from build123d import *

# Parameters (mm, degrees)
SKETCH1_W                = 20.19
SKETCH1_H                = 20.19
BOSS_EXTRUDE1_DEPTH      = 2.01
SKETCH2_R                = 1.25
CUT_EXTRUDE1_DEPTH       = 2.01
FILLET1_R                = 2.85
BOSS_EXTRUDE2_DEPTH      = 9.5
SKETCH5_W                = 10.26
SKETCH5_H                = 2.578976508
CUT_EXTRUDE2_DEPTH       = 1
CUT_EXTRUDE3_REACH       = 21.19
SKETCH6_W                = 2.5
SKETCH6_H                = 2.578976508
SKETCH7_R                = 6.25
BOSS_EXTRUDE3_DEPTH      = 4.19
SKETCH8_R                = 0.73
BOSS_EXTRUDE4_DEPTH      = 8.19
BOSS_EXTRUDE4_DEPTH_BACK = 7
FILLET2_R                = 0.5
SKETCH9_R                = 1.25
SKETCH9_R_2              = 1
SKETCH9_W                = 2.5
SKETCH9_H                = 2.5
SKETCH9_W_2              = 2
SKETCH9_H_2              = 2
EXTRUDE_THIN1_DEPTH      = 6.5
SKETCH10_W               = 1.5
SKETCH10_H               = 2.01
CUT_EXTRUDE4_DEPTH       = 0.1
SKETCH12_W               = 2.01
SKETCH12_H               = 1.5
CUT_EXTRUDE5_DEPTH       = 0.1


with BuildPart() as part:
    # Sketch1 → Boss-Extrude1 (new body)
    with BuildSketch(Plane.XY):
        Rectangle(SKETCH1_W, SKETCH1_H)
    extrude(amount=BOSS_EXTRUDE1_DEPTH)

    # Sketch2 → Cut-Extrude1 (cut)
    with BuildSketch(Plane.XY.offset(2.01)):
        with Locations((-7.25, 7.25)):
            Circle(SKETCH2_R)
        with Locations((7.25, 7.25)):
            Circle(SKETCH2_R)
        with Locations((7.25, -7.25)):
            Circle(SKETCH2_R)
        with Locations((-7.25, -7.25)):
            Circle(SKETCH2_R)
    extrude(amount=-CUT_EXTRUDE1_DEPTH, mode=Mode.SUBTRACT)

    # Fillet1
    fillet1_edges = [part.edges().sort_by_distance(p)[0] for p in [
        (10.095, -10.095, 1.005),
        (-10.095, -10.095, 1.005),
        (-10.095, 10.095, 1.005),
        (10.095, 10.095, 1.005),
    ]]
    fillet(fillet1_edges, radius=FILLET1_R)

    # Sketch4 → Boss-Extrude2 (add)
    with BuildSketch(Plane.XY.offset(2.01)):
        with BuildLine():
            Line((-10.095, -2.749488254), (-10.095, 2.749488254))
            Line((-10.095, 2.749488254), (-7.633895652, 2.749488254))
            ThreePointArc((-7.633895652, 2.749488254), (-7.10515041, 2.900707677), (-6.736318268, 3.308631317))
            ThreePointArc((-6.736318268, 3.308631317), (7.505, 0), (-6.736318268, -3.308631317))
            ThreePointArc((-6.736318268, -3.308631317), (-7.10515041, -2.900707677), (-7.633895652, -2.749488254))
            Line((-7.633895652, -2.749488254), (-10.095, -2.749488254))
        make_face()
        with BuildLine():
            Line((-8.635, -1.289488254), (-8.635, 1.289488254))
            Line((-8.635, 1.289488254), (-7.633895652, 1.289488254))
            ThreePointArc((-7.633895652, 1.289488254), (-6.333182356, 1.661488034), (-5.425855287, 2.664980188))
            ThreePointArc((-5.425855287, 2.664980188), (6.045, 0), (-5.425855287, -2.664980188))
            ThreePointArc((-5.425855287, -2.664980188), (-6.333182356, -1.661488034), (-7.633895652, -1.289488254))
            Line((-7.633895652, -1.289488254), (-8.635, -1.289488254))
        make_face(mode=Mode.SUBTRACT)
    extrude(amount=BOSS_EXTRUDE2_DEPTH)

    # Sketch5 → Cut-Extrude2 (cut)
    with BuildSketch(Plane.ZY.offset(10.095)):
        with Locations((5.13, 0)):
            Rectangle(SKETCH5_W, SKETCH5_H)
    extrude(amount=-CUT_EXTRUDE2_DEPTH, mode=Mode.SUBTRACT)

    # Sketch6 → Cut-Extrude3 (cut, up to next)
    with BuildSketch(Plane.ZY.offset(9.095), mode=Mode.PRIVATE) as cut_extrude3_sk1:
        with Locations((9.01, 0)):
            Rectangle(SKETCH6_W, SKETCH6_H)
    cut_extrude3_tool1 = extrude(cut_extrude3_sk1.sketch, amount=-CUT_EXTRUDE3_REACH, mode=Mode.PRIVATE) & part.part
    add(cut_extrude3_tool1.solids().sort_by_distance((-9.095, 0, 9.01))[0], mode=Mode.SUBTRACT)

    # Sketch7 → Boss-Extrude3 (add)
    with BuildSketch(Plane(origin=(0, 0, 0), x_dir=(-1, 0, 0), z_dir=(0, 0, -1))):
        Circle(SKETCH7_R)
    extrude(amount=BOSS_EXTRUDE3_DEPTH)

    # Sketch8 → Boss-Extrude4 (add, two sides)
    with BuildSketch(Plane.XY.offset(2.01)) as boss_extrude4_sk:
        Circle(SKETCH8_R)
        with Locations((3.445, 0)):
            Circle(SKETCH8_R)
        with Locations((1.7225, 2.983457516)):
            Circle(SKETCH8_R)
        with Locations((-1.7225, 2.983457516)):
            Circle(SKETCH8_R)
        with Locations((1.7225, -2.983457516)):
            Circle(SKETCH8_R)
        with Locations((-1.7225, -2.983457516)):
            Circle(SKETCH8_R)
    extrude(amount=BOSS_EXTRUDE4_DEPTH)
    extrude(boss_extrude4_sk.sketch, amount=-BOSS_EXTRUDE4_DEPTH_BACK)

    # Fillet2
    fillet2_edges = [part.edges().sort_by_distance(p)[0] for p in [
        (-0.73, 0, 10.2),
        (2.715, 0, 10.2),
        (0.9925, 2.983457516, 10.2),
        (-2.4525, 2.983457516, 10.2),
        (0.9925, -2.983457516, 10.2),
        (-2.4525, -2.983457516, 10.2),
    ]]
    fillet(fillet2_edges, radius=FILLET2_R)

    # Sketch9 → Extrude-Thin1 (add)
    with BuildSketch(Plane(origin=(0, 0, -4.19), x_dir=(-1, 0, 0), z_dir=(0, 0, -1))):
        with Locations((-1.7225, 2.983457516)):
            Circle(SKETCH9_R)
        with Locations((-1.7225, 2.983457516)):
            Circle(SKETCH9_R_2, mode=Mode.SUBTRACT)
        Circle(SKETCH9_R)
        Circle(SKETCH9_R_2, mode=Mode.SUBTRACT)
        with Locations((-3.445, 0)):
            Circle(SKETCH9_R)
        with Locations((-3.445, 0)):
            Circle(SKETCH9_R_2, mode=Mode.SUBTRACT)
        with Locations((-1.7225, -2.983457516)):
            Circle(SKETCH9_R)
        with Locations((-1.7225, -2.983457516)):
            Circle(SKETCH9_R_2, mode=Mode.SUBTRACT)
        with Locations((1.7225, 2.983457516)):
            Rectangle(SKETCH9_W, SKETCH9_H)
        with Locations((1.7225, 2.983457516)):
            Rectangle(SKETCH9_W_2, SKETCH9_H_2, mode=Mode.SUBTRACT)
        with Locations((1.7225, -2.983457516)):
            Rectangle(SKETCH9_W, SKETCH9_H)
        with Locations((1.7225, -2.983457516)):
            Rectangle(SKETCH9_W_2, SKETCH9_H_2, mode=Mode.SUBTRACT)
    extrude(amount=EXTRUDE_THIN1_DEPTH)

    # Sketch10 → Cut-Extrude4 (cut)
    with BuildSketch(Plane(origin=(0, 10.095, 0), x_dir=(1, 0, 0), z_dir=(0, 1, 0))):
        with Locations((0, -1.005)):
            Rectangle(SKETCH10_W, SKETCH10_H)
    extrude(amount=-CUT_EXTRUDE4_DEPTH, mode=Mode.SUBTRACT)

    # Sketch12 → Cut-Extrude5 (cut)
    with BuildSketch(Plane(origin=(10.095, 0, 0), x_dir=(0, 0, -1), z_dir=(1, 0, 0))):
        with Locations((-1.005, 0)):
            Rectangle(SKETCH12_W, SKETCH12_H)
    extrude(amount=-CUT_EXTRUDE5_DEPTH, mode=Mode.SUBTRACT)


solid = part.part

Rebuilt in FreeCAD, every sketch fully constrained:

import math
import FreeCAD as App
import Part
import Sketcher
Q = App.Units.Quantity


def edges_at(feature, points):
    """Names of the edges that pass closest to the given points."""
    edges = feature.Shape.Edges
    near = lambda p: min(range(len(edges)), key=lambda i: edges[i].distToShape(Part.Vertex(*p))[0])
    return sorted({f"Edge{near(p) + 1}" for p in points})

doc = App.newDocument("Part")
body = doc.addObject("PartDesign::Body", "Body")

# Sketch on XY plane
sketch1 = doc.addObject("Sketcher::SketchObject", "Sketch")
body.addObject(sketch1)
sketch1.AttachmentSupport = (doc.XY_Plane, [""])
sketch1.MapMode = "FlatFace"
sketch1.addGeometry(Part.LineSegment(App.Vector(-10, 10, 0), App.Vector(-10, -10, 0)), False)
sketch1.addGeometry(Part.LineSegment(App.Vector(-10, -10, 0), App.Vector(10, -10, 0)), False)
sketch1.addGeometry(Part.LineSegment(App.Vector(10, -10, 0), App.Vector(10, 10, 0)), False)
sketch1.addGeometry(Part.LineSegment(App.Vector(10, 10, 0), App.Vector(-10, 10, 0)), False)
sketch1.addConstraint(Sketcher.Constraint("Coincident", 0, 2, 1, 1))
sketch1.addConstraint(Sketcher.Constraint("Coincident", 1, 2, 2, 1))
sketch1.addConstraint(Sketcher.Constraint("Coincident", 2, 2, 3, 1))
sketch1.addConstraint(Sketcher.Constraint("Coincident", 3, 2, 0, 1))
sketch1.addConstraint(Sketcher.Constraint("Vertical", 0))
sketch1.addConstraint(Sketcher.Constraint("Horizontal", 1))
sketch1.addConstraint(Sketcher.Constraint("Vertical", 2))
sketch1.addConstraint(Sketcher.Constraint("Horizontal", 3))
sketch1.addConstraint(Sketcher.Constraint("Symmetric", 0, 2, 2, 2, -1, 1))
sketch1.addConstraint(Sketcher.Constraint("Equal", 3, 0))
sketch1.addConstraint(Sketcher.Constraint("DistanceX", 1, 1, 1, 2, Q("20.19 mm")))
pad1 = doc.addObject("PartDesign::Pad", "Pad")
body.addObject(pad1)
pad1.Profile = sketch1
pad1.Length = 2.01

# Sketch on XY plane
sketch2 = doc.addObject("Sketcher::SketchObject", "Sketch001")
body.addObject(sketch2)
sketch2.AttachmentSupport = (doc.XY_Plane, [""])
sketch2.MapMode = "FlatFace"
sketch2.AttachmentOffset = App.Placement(App.Vector(0, 0, 2.01), App.Rotation())
sketch2.addGeometry(Part.Circle(App.Vector(-7.2, 7.2, 0), App.Vector(0, 0, 1), 1.2), False)
sketch2.addGeometry(Part.Circle(App.Vector(7.2, 7.2, 0), App.Vector(0, 0, 1), 1.2), False)
sketch2.addGeometry(Part.Circle(App.Vector(7.2, -7.2, 0), App.Vector(0, 0, 1), 1.2), False)
sketch2.addGeometry(Part.Circle(App.Vector(-7.2, -7.2, 0), App.Vector(0, 0, 1), 1.2), False)
sketch2.addConstraint(Sketcher.Constraint("Equal", 0, 1))
sketch2.addConstraint(Sketcher.Constraint("Equal", 1, 2))
sketch2.addConstraint(Sketcher.Constraint("Equal", 2, 3))
sketch2.addConstraint(Sketcher.Constraint("Symmetric", 0, 3, 2, 3, -1, 1))
sketch2.addConstraint(Sketcher.Constraint("Symmetric", 1, 3, 3, 3, -1, 1))
sketch2.addConstraint(Sketcher.Constraint("Symmetric", 0, 3, 1, 3, -2))
sketch2.addConstraint(Sketcher.Constraint("Diameter", 0, Q("2.5 mm")))
sketch2.addConstraint(Sketcher.Constraint("DistanceX", 0, 3, 1, 3, Q("14.5 mm")))
sketch2.addConstraint(Sketcher.Constraint("DistanceY", 2, 3, 1, 3, Q("14.5 mm")))
pocket1 = doc.addObject("PartDesign::Pocket", "Pocket")
body.addObject(pocket1)
pocket1.Profile = sketch2
pocket1.Length = 2.01
doc.recompute()

fillet = doc.addObject("PartDesign::Fillet", "Fillet")
body.addObject(fillet)
fillet.Base = (pocket1, edges_at(pocket1, [
    (10.095, -10.095, 1.005),
    (-10.095, -10.095, 1.005),
    (-10.095, 10.095, 1.005),
    (10.095, 10.095, 1.005),
]))
fillet.Radius = 2.85

# Sketch on XY plane
sketch3 = doc.addObject("Sketcher::SketchObject", "Sketch002")
body.addObject(sketch3)
sketch3.AttachmentSupport = (doc.XY_Plane, [""])
sketch3.MapMode = "FlatFace"
sketch3.AttachmentOffset = App.Placement(App.Vector(0, 0, 2.01), App.Rotation())
sketch3.addGeometry(Part.LineSegment(App.Vector(-10.1, 2.7, 0), App.Vector(-10.1, -2.7, 0)), False)
sketch3.addGeometry(Part.LineSegment(App.Vector(-10.1, -2.7, 0), App.Vector(-7.6, -2.7, 0)), False)
sketch3.addGeometry(Part.ArcOfCircle(Part.Circle(App.Vector(-7.6, -3.7, 0), App.Vector(0, 0, 1), 1), math.radians(26), math.radians(90)), False)
sketch3.addGeometry(Part.ArcOfCircle(Part.Circle(App.Vector(0, 0, 0), App.Vector(0, 0, 1), 7.5), math.radians(-154), math.radians(154)), False)
sketch3.addGeometry(Part.ArcOfCircle(Part.Circle(App.Vector(-7.6, 3.7, 0), App.Vector(0, 0, 1), 1), math.radians(-90), math.radians(-26)), False)
sketch3.addGeometry(Part.LineSegment(App.Vector(-7.6, 2.7, 0), App.Vector(-10.1, 2.7, 0)), False)
sketch3.addGeometry(Part.LineSegment(App.Vector(-8.6, -1.3, 0), App.Vector(-8.6, 1.3, 0)), False)
sketch3.addGeometry(Part.LineSegment(App.Vector(-8.6, 1.3, 0), App.Vector(-7.6, 1.3, 0)), False)
sketch3.addGeometry(Part.ArcOfCircle(Part.Circle(App.Vector(-7.6, 3.7, 0), App.Vector(0, 0, 1), 2.5), math.radians(-90), math.radians(-26)), False)
sketch3.addGeometry(Part.ArcOfCircle(Part.Circle(App.Vector(0, 0, 0), App.Vector(0, 0, 1), 6), math.radians(-154), math.radians(154)), False)
sketch3.addGeometry(Part.ArcOfCircle(Part.Circle(App.Vector(-7.6, -3.7, 0), App.Vector(0, 0, 1), 2.5), math.radians(26), math.radians(90)), False)
sketch3.addGeometry(Part.LineSegment(App.Vector(-7.6, -1.3, 0), App.Vector(-8.6, -1.3, 0)), False)
sketch3.addConstraint(Sketcher.Constraint("Coincident", 0, 2, 1, 1))
sketch3.addConstraint(Sketcher.Constraint("Tangent", 1, 2, 2, 2))
sketch3.addConstraint(Sketcher.Constraint("Tangent", 2, 1, 3, 1))
sketch3.addConstraint(Sketcher.Constraint("Tangent", 3, 2, 4, 2))
sketch3.addConstraint(Sketcher.Constraint("Tangent", 4, 1, 5, 1))
sketch3.addConstraint(Sketcher.Constraint("Coincident", 5, 2, 0, 1))
sketch3.addConstraint(Sketcher.Constraint("Coincident", 6, 2, 7, 1))
sketch3.addConstraint(Sketcher.Constraint("Tangent", 7, 2, 8, 1))
sketch3.addConstraint(Sketcher.Constraint("Tangent", 8, 2, 9, 2))
sketch3.addConstraint(Sketcher.Constraint("Tangent", 9, 1, 10, 1))
sketch3.addConstraint(Sketcher.Constraint("Tangent", 10, 2, 11, 1))
sketch3.addConstraint(Sketcher.Constraint("Coincident", 11, 2, 6, 1))
sketch3.addConstraint(Sketcher.Constraint("Vertical", 0))
sketch3.addConstraint(Sketcher.Constraint("Horizontal", 1))
sketch3.addConstraint(Sketcher.Constraint("Horizontal", 5))
sketch3.addConstraint(Sketcher.Constraint("Vertical", 6))
sketch3.addConstraint(Sketcher.Constraint("Horizontal", 7))
sketch3.addConstraint(Sketcher.Constraint("Horizontal", 11))
sketch3.addConstraint(Sketcher.Constraint("Coincident", 3, 3, -1, 1))
sketch3.addConstraint(Sketcher.Constraint("Coincident", 9, 3, -1, 1))
sketch3.addConstraint(Sketcher.Constraint("Coincident", 8, 3, 4, 3))
sketch3.addConstraint(Sketcher.Constraint("Coincident", 10, 3, 2, 3))
sketch3.addConstraint(Sketcher.Constraint("Equal", 2, 4))
sketch3.addConstraint(Sketcher.Constraint("Vertical", 2, 3, 4, 3))
sketch3.addConstraint(Sketcher.Constraint("Radius", 2, Q("1 mm")))
sketch3.addConstraint(Sketcher.Constraint("Radius", 8, Q("2.46 mm")))
sketch3.addConstraint(Sketcher.Constraint("Radius", 3, Q("7.505 mm")))
sketch3.addConstraint(Sketcher.Constraint("DistanceX", 5, 2, 6, 2, Q("1.46 mm")))
sketch3.addConstraint(Sketcher.Constraint("DistanceX", 0, 2, -1, 1, Q("10.095 mm")))
sketch3.addConstraint(Sketcher.Constraint("DistanceX", 1, 1, 1, 2, Q("2.461104 mm")))
pad2 = doc.addObject("PartDesign::Pad", "Pad001")
body.addObject(pad2)
pad2.Profile = sketch3
pad2.Length = 9.5

# Sketch on YZ plane
sketch4 = doc.addObject("Sketcher::SketchObject", "Sketch003")
body.addObject(sketch4)
sketch4.AttachmentSupport = (doc.YZ_Plane, [""])
sketch4.MapMode = "FlatFace"
sketch4.AttachmentOffset = App.Placement(App.Vector(0, 0, -10.095), App.Rotation())
sketch4.addGeometry(Part.LineSegment(App.Vector(1.3, 0, 0), App.Vector(-1.3, 0, 0)), False)
sketch4.addGeometry(Part.LineSegment(App.Vector(-1.3, 0, 0), App.Vector(-1.3, 10.3, 0)), False)
sketch4.addGeometry(Part.LineSegment(App.Vector(-1.3, 10.3, 0), App.Vector(1.3, 10.3, 0)), False)
sketch4.addGeometry(Part.LineSegment(App.Vector(1.3, 10.3, 0), App.Vector(1.3, 0, 0)), False)
sketch4.addConstraint(Sketcher.Constraint("Coincident", 0, 2, 1, 1))
sketch4.addConstraint(Sketcher.Constraint("Coincident", 1, 2, 2, 1))
sketch4.addConstraint(Sketcher.Constraint("Coincident", 2, 2, 3, 1))
sketch4.addConstraint(Sketcher.Constraint("Coincident", 3, 2, 0, 1))
sketch4.addConstraint(Sketcher.Constraint("Horizontal", 0))
sketch4.addConstraint(Sketcher.Constraint("Vertical", 1))
sketch4.addConstraint(Sketcher.Constraint("Horizontal", 2))
sketch4.addConstraint(Sketcher.Constraint("Vertical", 3))
sketch4.addConstraint(Sketcher.Constraint("Symmetric", 0, 2, 3, 2, -1, 1))
sketch4.addConstraint(Sketcher.Constraint("DistanceY", 1, 1, 1, 2, Q("10.26 mm")))
sketch4.addConstraint(Sketcher.Constraint("DistanceX", 0, 2, 0, 1, Q("2.578977 mm")))
pocket2 = doc.addObject("PartDesign::Pocket", "Pocket001")
body.addObject(pocket2)
pocket2.Profile = sketch4
pocket2.Length = 1
pocket2.Reversed = True

# Sketch on YZ plane
sketch5 = doc.addObject("Sketcher::SketchObject", "Sketch004")
body.addObject(sketch5)
sketch5.AttachmentSupport = (doc.YZ_Plane, [""])
sketch5.MapMode = "FlatFace"
sketch5.AttachmentOffset = App.Placement(App.Vector(0, 0, -9.095), App.Rotation())
sketch5.addGeometry(Part.LineSegment(App.Vector(1.3, 7.8, 0), App.Vector(-1.3, 7.8, 0)), False)
sketch5.addGeometry(Part.LineSegment(App.Vector(-1.3, 7.8, 0), App.Vector(-1.3, 10.3, 0)), False)
sketch5.addGeometry(Part.LineSegment(App.Vector(-1.3, 10.3, 0), App.Vector(1.3, 10.3, 0)), False)
sketch5.addGeometry(Part.LineSegment(App.Vector(1.3, 10.3, 0), App.Vector(1.3, 7.8, 0)), False)
sketch5.addConstraint(Sketcher.Constraint("Coincident", 0, 2, 1, 1))
sketch5.addConstraint(Sketcher.Constraint("Coincident", 1, 2, 2, 1))
sketch5.addConstraint(Sketcher.Constraint("Coincident", 2, 2, 3, 1))
sketch5.addConstraint(Sketcher.Constraint("Coincident", 3, 2, 0, 1))
sketch5.addConstraint(Sketcher.Constraint("Horizontal", 0))
sketch5.addConstraint(Sketcher.Constraint("Vertical", 1))
sketch5.addConstraint(Sketcher.Constraint("Horizontal", 2))
sketch5.addConstraint(Sketcher.Constraint("Vertical", 3))
sketch5.addConstraint(Sketcher.Constraint("DistanceY", 1, 1, 1, 2, Q("2.5 mm")))
sketch5.addConstraint(Sketcher.Constraint("DistanceY", -1, 1, 0, 2, Q("7.76 mm")))
sketch5.addConstraint(Sketcher.Constraint("DistanceX", 0, 2, 0, 1, Q("2.578977 mm")))
sketch5.addConstraint(Sketcher.Constraint("DistanceX", 0, 2, -1, 1, Q("1.289488 mm")))
pocket3 = doc.addObject("PartDesign::Pocket", "Pocket002")
body.addObject(pocket3)
pocket3.Profile = sketch5
pocket3.Type = "UpToFirst"
pocket3.Reversed = True

# Sketch on XY plane
sketch6 = doc.addObject("Sketcher::SketchObject", "Sketch005")
body.addObject(sketch6)
sketch6.AttachmentSupport = (doc.XY_Plane, [""])
sketch6.MapMode = "FlatFace"
sketch6.addGeometry(Part.Circle(App.Vector(0, 0, 0), App.Vector(0, 0, 1), 6), False)
sketch6.addConstraint(Sketcher.Constraint("Coincident", 0, 3, -1, 1))
sketch6.addConstraint(Sketcher.Constraint("Diameter", 0, Q("12.5 mm")))
pad3 = doc.addObject("PartDesign::Pad", "Pad002")
body.addObject(pad3)
pad3.Profile = sketch6
pad3.Length = 4.19
pad3.Reversed = True

# Sketch on XY plane
sketch7 = doc.addObject("Sketcher::SketchObject", "Sketch006")
body.addObject(sketch7)
sketch7.AttachmentSupport = (doc.XY_Plane, [""])
sketch7.MapMode = "FlatFace"
sketch7.AttachmentOffset = App.Placement(App.Vector(0, 0, 2.01), App.Rotation())
sketch7.addGeometry(Part.Circle(App.Vector(0, 0, 0), App.Vector(0, 0, 1), 0.7), False)
sketch7.addGeometry(Part.Circle(App.Vector(3.4, 0, 0), App.Vector(0, 0, 1), 0.7), False)
sketch7.addGeometry(Part.Circle(App.Vector(1.7, 3, 0), App.Vector(0, 0, 1), 0.7), False)
sketch7.addGeometry(Part.Circle(App.Vector(-1.7, 3, 0), App.Vector(0, 0, 1), 0.7), False)
sketch7.addGeometry(Part.Circle(App.Vector(1.7, -3, 0), App.Vector(0, 0, 1), 0.7), False)
sketch7.addGeometry(Part.Circle(App.Vector(-1.7, -3, 0), App.Vector(0, 0, 1), 0.7), False)
sketch7.addConstraint(Sketcher.Constraint("Coincident", 0, 3, -1, 1))
sketch7.addConstraint(Sketcher.Constraint("Equal", 0, 1))
sketch7.addConstraint(Sketcher.Constraint("Equal", 1, 2))
sketch7.addConstraint(Sketcher.Constraint("Equal", 2, 3))
sketch7.addConstraint(Sketcher.Constraint("Equal", 3, 4))
sketch7.addConstraint(Sketcher.Constraint("Equal", 4, 5))
sketch7.addConstraint(Sketcher.Constraint("Symmetric", 3, 3, 4, 3, -1, 1))
sketch7.addConstraint(Sketcher.Constraint("Symmetric", 2, 3, 5, 3, -1, 1))
sketch7.addConstraint(Sketcher.Constraint("Symmetric", 2, 3, 3, 3, -2))
sketch7.addConstraint(Sketcher.Constraint("PointOnObject", 1, 3, -1))
sketch7.addConstraint(Sketcher.Constraint("Diameter", 0, Q("1.46 mm")))
sketch7.addConstraint(Sketcher.Constraint("DistanceX", -1, 1, 1, 3, Q("3.445 mm")))
sketch7.addConstraint(Sketcher.Constraint("DistanceX", 3, 3, 2, 3, Q("3.445 mm")))
sketch7.addConstraint(Sketcher.Constraint("DistanceY", -1, 1, 2, 3, Q("2.983458 mm")))
pad4 = doc.addObject("PartDesign::Pad", "Pad003")
body.addObject(pad4)
pad4.Profile = sketch7
pad4.Type = "TwoLengths"
pad4.Length = 8.19
pad4.Length2 = 7
doc.recompute()

fillet2 = doc.addObject("PartDesign::Fillet", "Fillet001")
body.addObject(fillet2)
fillet2.Base = (pad4, edges_at(pad4, [
    (-0.73, 0, 10.2),
    (2.715, 0, 10.2),
    (0.993, 2.983, 10.2),
    (-2.453, 2.983, 10.2),
    (0.993, -2.983, 10.2),
    (-2.453, -2.983, 10.2),
]))
fillet2.Radius = 0.5

# Sketch on XY plane
sketch8 = doc.addObject("Sketcher::SketchObject", "Sketch007")
body.addObject(sketch8)
sketch8.AttachmentSupport = (doc.XY_Plane, [""])
sketch8.MapMode = "FlatFace"
sketch8.AttachmentOffset = App.Placement(App.Vector(0, 0, -4.19), App.Rotation())
sketch8.addGeometry(Part.Circle(App.Vector(1.7, 3, 0), App.Vector(0, 0, 1), 1.2), False)
sketch8.addGeometry(Part.Circle(App.Vector(1.7, 3, 0), App.Vector(0, 0, 1), 1), False)
sketch8.addGeometry(Part.Circle(App.Vector(0, 0, 0), App.Vector(0, 0, 1), 1.2), False)
sketch8.addGeometry(Part.Circle(App.Vector(0, 0, 0), App.Vector(0, 0, 1), 1), False)
sketch8.addGeometry(Part.Circle(App.Vector(3.4, 0, 0), App.Vector(0, 0, 1), 1.2), False)
sketch8.addGeometry(Part.Circle(App.Vector(3.4, 0, 0), App.Vector(0, 0, 1), 1), False)
sketch8.addGeometry(Part.Circle(App.Vector(1.7, -3, 0), App.Vector(0, 0, 1), 1.2), False)
sketch8.addGeometry(Part.Circle(App.Vector(1.7, -3, 0), App.Vector(0, 0, 1), 1), False)
sketch8.addGeometry(Part.LineSegment(App.Vector(-0.5, 4.2, 0), App.Vector(-0.5, 1.7, 0)), False)
sketch8.addGeometry(Part.LineSegment(App.Vector(-0.5, 1.7, 0), App.Vector(-3, 1.7, 0)), False)
sketch8.addGeometry(Part.LineSegment(App.Vector(-3, 1.7, 0), App.Vector(-3, 4.2, 0)), False)
sketch8.addGeometry(Part.LineSegment(App.Vector(-3, 4.2, 0), App.Vector(-0.5, 4.2, 0)), False)
sketch8.addGeometry(Part.LineSegment(App.Vector(-2.7, 2, 0), App.Vector(-0.7, 2, 0)), False)
sketch8.addGeometry(Part.LineSegment(App.Vector(-0.7, 2, 0), App.Vector(-0.7, 4, 0)), False)
sketch8.addGeometry(Part.LineSegment(App.Vector(-0.7, 4, 0), App.Vector(-2.7, 4, 0)), False)
sketch8.addGeometry(Part.LineSegment(App.Vector(-2.7, 4, 0), App.Vector(-2.7, 2, 0)), False)
sketch8.addGeometry(Part.LineSegment(App.Vector(-0.5, -1.7, 0), App.Vector(-0.5, -4.2, 0)), False)
sketch8.addGeometry(Part.LineSegment(App.Vector(-0.5, -4.2, 0), App.Vector(-3, -4.2, 0)), False)
sketch8.addGeometry(Part.LineSegment(App.Vector(-3, -4.2, 0), App.Vector(-3, -1.7, 0)), False)
sketch8.addGeometry(Part.LineSegment(App.Vector(-3, -1.7, 0), App.Vector(-0.5, -1.7, 0)), False)
sketch8.addGeometry(Part.LineSegment(App.Vector(-2.7, -4, 0), App.Vector(-0.7, -4, 0)), False)
sketch8.addGeometry(Part.LineSegment(App.Vector(-0.7, -4, 0), App.Vector(-0.7, -2, 0)), False)
sketch8.addGeometry(Part.LineSegment(App.Vector(-0.7, -2, 0), App.Vector(-2.7, -2, 0)), False)
sketch8.addGeometry(Part.LineSegment(App.Vector(-2.7, -2, 0), App.Vector(-2.7, -4, 0)), False)
sketch8.addConstraint(Sketcher.Constraint("Coincident", 8, 2, 9, 1))
sketch8.addConstraint(Sketcher.Constraint("Coincident", 9, 2, 10, 1))
sketch8.addConstraint(Sketcher.Constraint("Coincident", 10, 2, 11, 1))
sketch8.addConstraint(Sketcher.Constraint("Coincident", 11, 2, 8, 1))
sketch8.addConstraint(Sketcher.Constraint("Coincident", 12, 2, 13, 1))
sketch8.addConstraint(Sketcher.Constraint("Coincident", 13, 2, 14, 1))
sketch8.addConstraint(Sketcher.Constraint("Coincident", 14, 2, 15, 1))
sketch8.addConstraint(Sketcher.Constraint("Coincident", 15, 2, 12, 1))
sketch8.addConstraint(Sketcher.Constraint("Coincident", 16, 2, 17, 1))
sketch8.addConstraint(Sketcher.Constraint("Coincident", 17, 2, 18, 1))
sketch8.addConstraint(Sketcher.Constraint("Coincident", 18, 2, 19, 1))
sketch8.addConstraint(Sketcher.Constraint("Coincident", 19, 2, 16, 1))
sketch8.addConstraint(Sketcher.Constraint("Coincident", 20, 2, 21, 1))
sketch8.addConstraint(Sketcher.Constraint("Coincident", 21, 2, 22, 1))
sketch8.addConstraint(Sketcher.Constraint("Coincident", 22, 2, 23, 1))
sketch8.addConstraint(Sketcher.Constraint("Coincident", 23, 2, 20, 1))
sketch8.addConstraint(Sketcher.Constraint("Vertical", 8))
sketch8.addConstraint(Sketcher.Constraint("Horizontal", 9))
sketch8.addConstraint(Sketcher.Constraint("Vertical", 10))
sketch8.addConstraint(Sketcher.Constraint("Horizontal", 11))
sketch8.addConstraint(Sketcher.Constraint("Horizontal", 12))
sketch8.addConstraint(Sketcher.Constraint("Vertical", 13))
sketch8.addConstraint(Sketcher.Constraint("Horizontal", 14))
sketch8.addConstraint(Sketcher.Constraint("Vertical", 15))
sketch8.addConstraint(Sketcher.Constraint("Vertical", 16))
sketch8.addConstraint(Sketcher.Constraint("Horizontal", 17))
sketch8.addConstraint(Sketcher.Constraint("Vertical", 18))
sketch8.addConstraint(Sketcher.Constraint("Horizontal", 19))
sketch8.addConstraint(Sketcher.Constraint("Horizontal", 20))
sketch8.addConstraint(Sketcher.Constraint("Vertical", 21))
sketch8.addConstraint(Sketcher.Constraint("Horizontal", 22))
sketch8.addConstraint(Sketcher.Constraint("Vertical", 23))
sketch8.addConstraint(Sketcher.Constraint("Coincident", 2, 3, -1, 1))
sketch8.addConstraint(Sketcher.Constraint("Coincident", 3, 3, -1, 1))
sketch8.addConstraint(Sketcher.Constraint("Coincident", 1, 3, 0, 3))
sketch8.addConstraint(Sketcher.Constraint("Coincident", 5, 3, 4, 3))
sketch8.addConstraint(Sketcher.Constraint("Coincident", 7, 3, 6, 3))
sketch8.addConstraint(Sketcher.Constraint("Equal", 0, 2))
sketch8.addConstraint(Sketcher.Constraint("Equal", 1, 3))
sketch8.addConstraint(Sketcher.Constraint("Equal", 2, 4))
sketch8.addConstraint(Sketcher.Constraint("Equal", 3, 5))
sketch8.addConstraint(Sketcher.Constraint("Equal", 4, 6))
sketch8.addConstraint(Sketcher.Constraint("Equal", 5, 7))
sketch8.addConstraint(Sketcher.Constraint("Symmetric", 0, 3, 6, 3, -1))
sketch8.addConstraint(Sketcher.Constraint("Symmetric", 11, 2, 16, 2, -1))
sketch8.addConstraint(Sketcher.Constraint("Symmetric", 9, 2, 18, 2, -1))
sketch8.addConstraint(Sketcher.Constraint("Symmetric", 13, 2, 20, 2, -1))
sketch8.addConstraint(Sketcher.Constraint("Symmetric", 15, 2, 22, 2, -1))
sketch8.addConstraint(Sketcher.Constraint("PointOnObject", 4, 3, -1))
sketch8.addConstraint(Sketcher.Constraint("Equal", 19, 8))
sketch8.addConstraint(Sketcher.Constraint("Equal", 22, 13))
sketch8.addConstraint(Sketcher.Constraint("Diameter", 1, Q("2 mm")))
sketch8.addConstraint(Sketcher.Constraint("Diameter", 0, Q("2.5 mm")))
sketch8.addConstraint(Sketcher.Constraint("DistanceX", 12, 1, 12, 2, Q("2 mm")))
sketch8.addConstraint(Sketcher.Constraint("DistanceX", 9, 2, 9, 1, Q("2.5 mm")))
sketch8.addConstraint(Sketcher.Constraint("DistanceY", 0, 3, 13, 2, Q("1 mm")))
sketch8.addConstraint(Sketcher.Constraint("DistanceY", 8, 2, 0, 3, Q("1.25 mm")))
sketch8.addConstraint(Sketcher.Constraint("DistanceX", 12, 2, 8, 2, Q("0.25 mm")))
sketch8.addConstraint(Sketcher.Constraint("DistanceX", -1, 1, 4, 3, Q("3.445 mm")))
sketch8.addConstraint(Sketcher.Constraint("DistanceX", 8, 2, 0, 3, Q("2.195 mm")))
sketch8.addConstraint(Sketcher.Constraint("DistanceX", -1, 1, 0, 3, Q("1.7225 mm")))
sketch8.addConstraint(Sketcher.Constraint("DistanceY", -1, 1, 0, 3, Q("2.983458 mm")))
pad5 = doc.addObject("PartDesign::Pad", "Pad004")
body.addObject(pad5)
pad5.Profile = sketch8
pad5.Length = 6.5
pad5.Reversed = True

# Sketch on XZ plane
sketch9 = doc.addObject("Sketcher::SketchObject", "Sketch008")
body.addObject(sketch9)
sketch9.AttachmentSupport = (doc.XZ_Plane, [""])
sketch9.MapMode = "FlatFace"
sketch9.AttachmentOffset = App.Placement(App.Vector(0, 0, -10.095), App.Rotation())
sketch9.addGeometry(Part.LineSegment(App.Vector(-0.8, 0, 0), App.Vector(-0.8, 2, 0)), False)
sketch9.addGeometry(Part.LineSegment(App.Vector(-0.8, 2, 0), App.Vector(0.8, 2, 0)), False)
sketch9.addGeometry(Part.LineSegment(App.Vector(0.8, 2, 0), App.Vector(0.8, 0, 0)), False)
sketch9.addGeometry(Part.LineSegment(App.Vector(0.8, 0, 0), App.Vector(-0.8, 0, 0)), False)
sketch9.addConstraint(Sketcher.Constraint("Coincident", 0, 2, 1, 1))
sketch9.addConstraint(Sketcher.Constraint("Coincident", 1, 2, 2, 1))
sketch9.addConstraint(Sketcher.Constraint("Coincident", 2, 2, 3, 1))
sketch9.addConstraint(Sketcher.Constraint("Coincident", 3, 2, 0, 1))
sketch9.addConstraint(Sketcher.Constraint("Vertical", 0))
sketch9.addConstraint(Sketcher.Constraint("Horizontal", 1))
sketch9.addConstraint(Sketcher.Constraint("Vertical", 2))
sketch9.addConstraint(Sketcher.Constraint("Horizontal", 3))
sketch9.addConstraint(Sketcher.Constraint("Symmetric", 2, 2, 3, 2, -1, 1))
sketch9.addConstraint(Sketcher.Constraint("DistanceX", 1, 1, 1, 2, Q("1.5 mm")))
sketch9.addConstraint(Sketcher.Constraint("DistanceY", 0, 1, 0, 2, Q("2.01 mm")))
pocket4 = doc.addObject("PartDesign::Pocket", "Pocket003")
body.addObject(pocket4)
pocket4.Profile = sketch9
pocket4.Length = 0.1
pocket4.Reversed = True

# Sketch on YZ plane
sketch10 = doc.addObject("Sketcher::SketchObject", "Sketch009")
body.addObject(sketch10)
sketch10.AttachmentSupport = (doc.YZ_Plane, [""])
sketch10.MapMode = "FlatFace"
sketch10.AttachmentOffset = App.Placement(App.Vector(0, 0, 10.095), App.Rotation())
sketch10.addGeometry(Part.LineSegment(App.Vector(0.8, 2, 0), App.Vector(-0.8, 2, 0)), False)
sketch10.addGeometry(Part.LineSegment(App.Vector(-0.8, 2, 0), App.Vector(-0.8, 0, 0)), False)
sketch10.addGeometry(Part.LineSegment(App.Vector(-0.8, 0, 0), App.Vector(0.8, 0, 0)), False)
sketch10.addGeometry(Part.LineSegment(App.Vector(0.8, 0, 0), App.Vector(0.8, 2, 0)), False)
sketch10.addConstraint(Sketcher.Constraint("Coincident", 0, 2, 1, 1))
sketch10.addConstraint(Sketcher.Constraint("Coincident", 1, 2, 2, 1))
sketch10.addConstraint(Sketcher.Constraint("Coincident", 2, 2, 3, 1))
sketch10.addConstraint(Sketcher.Constraint("Coincident", 3, 2, 0, 1))
sketch10.addConstraint(Sketcher.Constraint("Horizontal", 0))
sketch10.addConstraint(Sketcher.Constraint("Vertical", 1))
sketch10.addConstraint(Sketcher.Constraint("Horizontal", 2))
sketch10.addConstraint(Sketcher.Constraint("Vertical", 3))
sketch10.addConstraint(Sketcher.Constraint("Symmetric", 1, 2, 2, 2, -1, 1))
sketch10.addConstraint(Sketcher.Constraint("DistanceX", 0, 2, 0, 1, Q("1.5 mm")))
sketch10.addConstraint(Sketcher.Constraint("DistanceY", 1, 2, 1, 1, Q("2.01 mm")))
pocket5 = doc.addObject("PartDesign::Pocket", "Pocket004")
body.addObject(pocket5)
pocket5.Profile = sketch10
pocket5.Length = 0.1

doc.recompute()
